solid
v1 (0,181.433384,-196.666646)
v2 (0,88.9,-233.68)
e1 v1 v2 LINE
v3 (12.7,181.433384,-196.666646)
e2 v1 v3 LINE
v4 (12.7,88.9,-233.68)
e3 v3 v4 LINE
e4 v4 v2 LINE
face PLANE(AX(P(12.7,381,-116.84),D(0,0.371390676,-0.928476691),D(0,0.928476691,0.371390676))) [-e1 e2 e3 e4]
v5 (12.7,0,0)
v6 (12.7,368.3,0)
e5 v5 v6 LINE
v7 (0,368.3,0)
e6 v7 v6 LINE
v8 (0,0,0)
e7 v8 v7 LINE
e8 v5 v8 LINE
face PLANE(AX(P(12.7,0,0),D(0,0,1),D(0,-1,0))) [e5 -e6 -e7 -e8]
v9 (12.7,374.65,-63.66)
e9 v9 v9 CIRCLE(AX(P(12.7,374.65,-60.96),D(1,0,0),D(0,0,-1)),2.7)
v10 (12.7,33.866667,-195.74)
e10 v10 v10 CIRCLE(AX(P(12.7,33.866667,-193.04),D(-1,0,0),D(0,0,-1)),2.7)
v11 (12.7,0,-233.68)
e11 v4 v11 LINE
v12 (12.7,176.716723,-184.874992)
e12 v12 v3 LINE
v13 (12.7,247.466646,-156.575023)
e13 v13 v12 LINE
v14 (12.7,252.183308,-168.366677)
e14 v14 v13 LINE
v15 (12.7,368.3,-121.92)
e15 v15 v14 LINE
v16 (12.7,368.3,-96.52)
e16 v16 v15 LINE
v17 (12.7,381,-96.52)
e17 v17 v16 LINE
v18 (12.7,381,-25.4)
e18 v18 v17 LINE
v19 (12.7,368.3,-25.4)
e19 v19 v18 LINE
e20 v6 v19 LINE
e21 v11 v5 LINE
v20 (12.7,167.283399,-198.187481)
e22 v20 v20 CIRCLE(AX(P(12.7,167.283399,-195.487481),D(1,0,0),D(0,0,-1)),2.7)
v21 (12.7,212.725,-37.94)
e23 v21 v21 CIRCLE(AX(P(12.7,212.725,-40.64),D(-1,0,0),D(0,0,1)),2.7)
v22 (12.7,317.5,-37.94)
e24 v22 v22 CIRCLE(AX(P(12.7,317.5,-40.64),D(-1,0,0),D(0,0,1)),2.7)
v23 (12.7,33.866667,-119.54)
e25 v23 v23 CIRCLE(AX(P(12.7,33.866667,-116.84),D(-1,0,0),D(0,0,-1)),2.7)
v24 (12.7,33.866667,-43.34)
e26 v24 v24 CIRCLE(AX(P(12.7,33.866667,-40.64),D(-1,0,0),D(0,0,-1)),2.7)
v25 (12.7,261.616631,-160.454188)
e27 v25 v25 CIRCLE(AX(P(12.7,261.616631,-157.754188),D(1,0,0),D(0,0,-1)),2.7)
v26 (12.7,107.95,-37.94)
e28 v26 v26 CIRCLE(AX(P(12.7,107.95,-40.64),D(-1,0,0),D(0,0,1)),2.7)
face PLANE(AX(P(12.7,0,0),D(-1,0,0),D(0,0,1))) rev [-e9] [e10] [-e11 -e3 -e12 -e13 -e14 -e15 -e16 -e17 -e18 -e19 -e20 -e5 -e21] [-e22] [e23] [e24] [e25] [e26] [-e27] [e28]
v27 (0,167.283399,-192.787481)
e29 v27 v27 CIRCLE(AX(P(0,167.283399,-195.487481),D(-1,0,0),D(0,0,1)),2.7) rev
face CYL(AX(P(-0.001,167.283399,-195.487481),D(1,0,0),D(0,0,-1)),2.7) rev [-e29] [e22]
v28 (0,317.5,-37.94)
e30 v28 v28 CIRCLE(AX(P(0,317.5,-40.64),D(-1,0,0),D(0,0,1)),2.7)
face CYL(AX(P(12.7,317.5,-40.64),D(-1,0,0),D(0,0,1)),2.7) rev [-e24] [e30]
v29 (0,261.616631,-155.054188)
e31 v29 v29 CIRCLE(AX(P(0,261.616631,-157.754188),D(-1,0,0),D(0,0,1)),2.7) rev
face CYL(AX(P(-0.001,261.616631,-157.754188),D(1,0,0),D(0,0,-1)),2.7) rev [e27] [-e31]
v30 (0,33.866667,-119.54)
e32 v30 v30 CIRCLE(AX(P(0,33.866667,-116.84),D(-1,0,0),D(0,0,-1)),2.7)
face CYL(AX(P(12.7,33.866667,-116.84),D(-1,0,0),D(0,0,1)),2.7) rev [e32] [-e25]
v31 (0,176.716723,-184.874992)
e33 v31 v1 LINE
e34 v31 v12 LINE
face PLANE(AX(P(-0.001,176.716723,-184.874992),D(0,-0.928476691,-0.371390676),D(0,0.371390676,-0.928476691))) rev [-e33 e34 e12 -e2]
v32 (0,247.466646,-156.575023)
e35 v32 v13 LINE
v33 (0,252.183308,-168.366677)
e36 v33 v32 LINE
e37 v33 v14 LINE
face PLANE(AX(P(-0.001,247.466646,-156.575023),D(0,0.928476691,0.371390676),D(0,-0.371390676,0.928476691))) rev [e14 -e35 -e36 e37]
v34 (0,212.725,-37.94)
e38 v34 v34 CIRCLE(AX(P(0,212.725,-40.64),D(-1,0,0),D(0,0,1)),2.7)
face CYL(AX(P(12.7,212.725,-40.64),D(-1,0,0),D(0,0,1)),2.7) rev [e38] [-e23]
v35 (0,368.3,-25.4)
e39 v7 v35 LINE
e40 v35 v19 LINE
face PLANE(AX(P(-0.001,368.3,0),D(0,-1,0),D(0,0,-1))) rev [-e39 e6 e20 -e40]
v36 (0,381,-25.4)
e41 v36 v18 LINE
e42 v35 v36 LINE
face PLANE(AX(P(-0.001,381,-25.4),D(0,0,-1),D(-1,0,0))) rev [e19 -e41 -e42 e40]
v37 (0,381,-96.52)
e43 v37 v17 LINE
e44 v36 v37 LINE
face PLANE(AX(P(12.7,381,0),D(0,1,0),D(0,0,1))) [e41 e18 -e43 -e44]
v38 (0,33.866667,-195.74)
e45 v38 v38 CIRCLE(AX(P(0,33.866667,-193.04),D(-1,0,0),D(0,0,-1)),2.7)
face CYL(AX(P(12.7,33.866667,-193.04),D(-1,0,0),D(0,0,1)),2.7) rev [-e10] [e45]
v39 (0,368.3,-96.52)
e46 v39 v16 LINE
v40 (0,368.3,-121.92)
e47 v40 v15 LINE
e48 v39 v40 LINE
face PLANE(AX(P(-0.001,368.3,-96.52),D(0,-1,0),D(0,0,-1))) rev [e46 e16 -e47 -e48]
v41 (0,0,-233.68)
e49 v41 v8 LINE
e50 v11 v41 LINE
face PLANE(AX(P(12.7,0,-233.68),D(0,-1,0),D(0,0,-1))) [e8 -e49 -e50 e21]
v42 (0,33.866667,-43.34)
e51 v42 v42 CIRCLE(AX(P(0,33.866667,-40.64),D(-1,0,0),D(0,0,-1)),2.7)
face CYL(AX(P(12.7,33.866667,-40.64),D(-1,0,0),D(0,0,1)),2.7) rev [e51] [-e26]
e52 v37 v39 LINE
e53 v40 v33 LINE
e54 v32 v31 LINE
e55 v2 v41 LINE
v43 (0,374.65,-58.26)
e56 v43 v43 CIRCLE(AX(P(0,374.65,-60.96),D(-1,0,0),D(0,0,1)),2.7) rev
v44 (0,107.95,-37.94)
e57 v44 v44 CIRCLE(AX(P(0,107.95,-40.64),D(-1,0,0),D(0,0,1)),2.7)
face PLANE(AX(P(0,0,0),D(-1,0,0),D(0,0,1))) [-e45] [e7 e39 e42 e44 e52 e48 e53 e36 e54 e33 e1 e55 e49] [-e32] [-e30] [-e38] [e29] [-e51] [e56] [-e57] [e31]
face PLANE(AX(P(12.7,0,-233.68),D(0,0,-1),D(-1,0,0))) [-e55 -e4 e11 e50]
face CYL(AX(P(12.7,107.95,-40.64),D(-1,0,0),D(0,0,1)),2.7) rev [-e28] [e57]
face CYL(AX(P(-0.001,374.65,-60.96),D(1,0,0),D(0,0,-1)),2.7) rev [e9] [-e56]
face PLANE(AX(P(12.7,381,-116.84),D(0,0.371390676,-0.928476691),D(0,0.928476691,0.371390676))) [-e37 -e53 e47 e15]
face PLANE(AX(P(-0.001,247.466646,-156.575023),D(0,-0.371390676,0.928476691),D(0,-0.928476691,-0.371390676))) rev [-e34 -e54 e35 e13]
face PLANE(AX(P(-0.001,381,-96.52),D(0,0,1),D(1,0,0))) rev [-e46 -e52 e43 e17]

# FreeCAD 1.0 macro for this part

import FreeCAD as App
import Part
import Sketcher
Q = App.Units.Quantity


def add_polygon(sketch, points):
    """Adds a closed chain of lines whose ends are joined by coincident constraints."""
    first, n = sketch.GeometryCount, len(points)
    for a, b in zip(points, points[1:] + points[:1]):
        sketch.addGeometry(Part.LineSegment(App.Vector(*a, 0), App.Vector(*b, 0)), False)
    for i in range(n):
        sketch.addConstraint(Sketcher.Constraint("Coincident", first + i, 2, first + (i + 1) % n, 1))

doc = App.newDocument("Part")
params = doc.addObject("Spreadsheet::Sheet", "Params")
for row, (alias, value) in enumerate([
    ("sketch1_width", "15 in"),
    ("sketch1_width2", "3.5 in"),
    ("sketch1_height", "4.6 in"),
    ("sketch1_height2", "9.2 in"),
    ("pad1_length", "0.5 in"),
    ("sketch3_height", "1 in"),
    ("sketch3_width", "0.5 in"),
    ("sketch4_height", "1 in"),
    ("sketch4_width", "0.5 in"),
    ("sketch7_length", "3 in"),
    ("sketch7_length2", "0.5 in"),
], start=1):
    params.set(f"A{row}", alias)
    params.set(f"B{row}", "=" + value)
    params.setAlias(f"B{row}", alias)

body = doc.addObject("PartDesign::Body", "Body")

sketch1 = doc.addObject("Sketcher::SketchObject", "Sketch")
body.addObject(sketch1)
sketch1.AttachmentSupport = (doc.YZ_Plane, [""])
sketch1.MapMode = "FlatFace"
add_polygon(sketch1, [(381, 0), (381, -116.8), (88.9, -233.7), (0, -233.7), (0, 0)])
sketch1.addGeometry(Part.Circle(App.Vector(33.9, -193, 0), App.Vector(0, 0, 1), 2.7), False)
sketch1.addGeometry(Part.Circle(App.Vector(33.9, -116.8, 0), App.Vector(0, 0, 1), 2.7), False)
sketch1.addGeometry(Part.Circle(App.Vector(317.5, -40.6, 0), App.Vector(0, 0, 1), 2.7), False)
sketch1.addGeometry(Part.Circle(App.Vector(212.7, -40.6, 0), App.Vector(0, 0, 1), 2.7), False)
sketch1.addGeometry(Part.Circle(App.Vector(108, -40.6, 0), App.Vector(0, 0, 1), 2.7), False)
sketch1.addGeometry(Part.Circle(App.Vector(33.9, -40.6, 0), App.Vector(0, 0, 1), 2.7), False)
sketch1.addConstraint([
    Sketcher.Constraint("Vertical", 0),
    Sketcher.Constraint("Horizontal", 2),
    Sketcher.Constraint("Vertical", 3),
    Sketcher.Constraint("Horizontal", 4),
    Sketcher.Constraint("Coincident", 3, 2, -1, 1),
    Sketcher.Constraint("Equal", 5, 6),
    Sketcher.Constraint("Equal", 6, 7),
    Sketcher.Constraint("Equal", 7, 8),
    Sketcher.Constraint("Equal", 8, 9),
    Sketcher.Constraint("Equal", 9, 10),
    Sketcher.Constraint("Horizontal", 7, 3, 8, 3),
    Sketcher.Constraint("Horizontal", 8, 3, 9, 3),
    Sketcher.Constraint("Horizontal", 9, 3, 10, 3),
    Sketcher.Constraint("Horizontal", 6, 3, 0, 2),
    Sketcher.Constraint("Vertical", 5, 3, 6, 3),
    Sketcher.Constraint("Vertical", 6, 3, 10, 3),
    Sketcher.Constraint("DistanceX", 4, 1, 4, 2, Q("15 in")),
    Sketcher.Constraint("DistanceX", 2, 2, 2, 1, Q("3.5 in")),
    Sketcher.Constraint("DistanceY", 0, 2, 0, 1, Q("4.6 in")),
    Sketcher.Constraint("DistanceY", 3, 1, 3, 2, Q("9.2 in")),
    Sketcher.Constraint("DistanceY", 5, 3, 6, 3, Q("3 in")),
    Sketcher.Constraint("DistanceY", 6, 3, 7, 3, Q("3 in")),
    Sketcher.Constraint("DistanceX", -1, 1, 7, 3, Q("12.5 in")),
    Sketcher.Constraint("Diameter", 5, 5.4),
    Sketcher.Constraint("DistanceX", -1, 1, 9, 3, Q("4.25 in")),
    Sketcher.Constraint("DistanceX", -1, 1, 8, 3, Q("8.375 in")),
    Sketcher.Constraint("DistanceX", -1, 1, 5, 3, 33.866667),
])
sketch1.setExpression("Constraints[21]", "Params.sketch1_width")
sketch1.setExpression("Constraints[22]", "Params.sketch1_width2")
sketch1.setExpression("Constraints[23]", "Params.sketch1_height")
sketch1.setExpression("Constraints[24]", "Params.sketch1_height2")
pad1 = doc.addObject("PartDesign::Pad", "Pad")
body.addObject(pad1)
pad1.Profile = sketch1
pad1.setExpression("Length", "Params.pad1_length")

sketch2 = doc.addObject("Sketcher::SketchObject", "Sketch001")
body.addObject(sketch2)
sketch2.AttachmentSupport = (doc.YZ_Plane, [""])
sketch2.MapMode = "FlatFace"
sketch2.AttachmentOffset = App.Placement(App.Vector(0, 0, 0.5 * 25.4), App.Rotation())
sketch2.addGeometry(Part.Circle(App.Vector(374.6, -61, 0), App.Vector(0, 0, 1), 2.7), False)
sketch2.addConstraint([
    Sketcher.Constraint("DistanceY", 0, 3, -1, 1, Q("2.4 in")),
    Sketcher.Constraint("Diameter", 0, 5.4),
    Sketcher.Constraint("DistanceX", -1, 1, 0, 3, Q("14.75 in")),
])
pocket1 = doc.addObject("PartDesign::Pocket", "Pocket")
body.addObject(pocket1)
pocket1.Profile = sketch2
pocket1.Type = "UpToFirst"

sketch3 = doc.addObject("Sketcher::SketchObject", "Sketch002")
body.addObject(sketch3)
sketch3.AttachmentSupport = (doc.YZ_Plane, [""])
sketch3.MapMode = "FlatFace"
sketch3.AttachmentOffset = App.Placement(App.Vector(0, 0, 0.5 * 25.4), App.Rotation())
add_polygon(sketch3, [(381, 0), (368, 0), (368, -25), (381, -25)])
sketch3.addConstraint([
    Sketcher.Constraint("Horizontal", 0),
    Sketcher.Constraint("Vertical", 1),
    Sketcher.Constraint("Horizontal", 2),
    Sketcher.Constraint("Vertical", 3),
    Sketcher.Constraint("PointOnObject", 0, 2, -1),
    Sketcher.Constraint("DistanceY", 1, 2, 1, 1, Q("1 in")),
    Sketcher.Constraint("DistanceX", 0, 2, 0, 1, Q("0.5 in")),
    Sketcher.Constraint("DistanceX", -1, 1, 2, 2, Q("15 in")),
])
sketch3.setExpression("Constraints[9]", "Params.sketch3_height")
sketch3.setExpression("Constraints[10]", "Params.sketch3_width")
pocket2 = doc.addObject("PartDesign::Pocket", "Pocket001")
body.addObject(pocket2)
pocket2.Profile = sketch3
pocket2.Type = "UpToFirst"

sketch4 = doc.addObject("Sketcher::SketchObject", "Sketch003")
body.addObject(sketch4)
sketch4.AttachmentSupport = (doc.YZ_Plane, [""])
sketch4.MapMode = "FlatFace"
sketch4.AttachmentOffset = App.Placement(App.Vector(0, 0, 0.5 * 25.4), App.Rotation())
add_polygon(sketch4, [(381, -97), (368, -97), (368, -122), (381, -122)])
sketch4.addConstraint([
    Sketcher.Constraint("Horizontal", 0),
    Sketcher.Constraint("Vertical", 1),
    Sketcher.Constraint("Horizontal", 2),
    Sketcher.Constraint("Vertical", 3),
    Sketcher.Constraint("DistanceY", 1, 2, 1, 1, Q("1 in")),
    Sketcher.Constraint("DistanceX", 0, 2, 0, 1, Q("0.5 in")),
    Sketcher.Constraint("DistanceX", -1, 1, 2, 2, Q("15 in")),
    Sketcher.Constraint("DistanceY", 0, 2, -1, 1, Q("3.8 in")),
])
sketch4.setExpression("Constraints[8]", "Params.sketch4_height")
sketch4.setExpression("Constraints[9]", "Params.sketch4_width")
pocket3 = doc.addObject("PartDesign::Pocket", "Pocket002")
body.addObject(pocket3)
pocket3.Profile = sketch4
pocket3.Type = "UpToFirst"

sketch5 = doc.addObject("Sketcher::SketchObject", "Sketch004")
body.addObject(sketch5)
sketch5.AttachmentSupport = (doc.YZ_Plane, [""])
sketch5.MapMode = "FlatFace"
sketch5.AttachmentOffset = App.Placement(App.Vector(0, 0, 0.5 * 25.4), App.Rotation())
sketch5.addGeometry(Part.Circle(App.Vector(261.6, -157.8, 0), App.Vector(0, 0, 1), 2.7), False)
sketch5.addConstraint([
    Sketcher.Constraint("Diameter", 0, 5.4),
    Sketcher.Constraint("DistanceX", -1, 1, 0, 3, 261.616631),
    Sketcher.Constraint("DistanceY", 0, 3, -1, 1, 157.754188),
])
pocket4 = doc.addObject("PartDesign::Pocket", "Pocket003")
body.addObject(pocket4)
pocket4.Profile = sketch5
pocket4.Type = "UpToFirst"

sketch6 = doc.addObject("Sketcher::SketchObject", "Sketch005")
body.addObject(sketch6)
sketch6.AttachmentSupport = (doc.YZ_Plane, [""])
sketch6.MapMode = "FlatFace"
sketch6.AttachmentOffset = App.Placement(App.Vector(0, 0, 0.5 * 25.4), App.Rotation())
sketch6.addGeometry(Part.Circle(App.Vector(167.3, -195.5, 0), App.Vector(0, 0, 1), 2.7), False)
sketch6.addConstraint([
    Sketcher.Constraint("Diameter", 0, 5.4),
    Sketcher.Constraint("DistanceX", -1, 1, 0, 3, 167.283399),
    Sketcher.Constraint("DistanceY", 0, 3, -1, 1, 195.487481),
])
pocket5 = doc.addObject("PartDesign::Pocket", "Pocket004")
body.addObject(pocket5)
pocket5.Profile = sketch6
pocket5.Type = "UpToFirst"

sketch7 = doc.addObject("Sketcher::SketchObject", "Sketch006")
body.addObject(sketch7)
sketch7.AttachmentSupport = (doc.YZ_Plane, [""])
sketch7.MapMode = "FlatFace"
sketch7.AttachmentOffset = App.Placement(App.Vector(0, 0, 0.5 * 25.4), App.Rotation())
add_polygon(sketch7, [(247, -157), (177, -185), (181, -197), (252, -168)])
sketch7.addConstraint([
    Sketcher.Constraint("Perpendicular", 0, 1),
    Sketcher.Constraint("Perpendicular", 1, 2),
    Sketcher.Constraint("Perpendicular", 2, 3),
    Sketcher.Constraint("Distance", 0, Q("3 in")),
    Sketcher.Constraint("Distance", 1, Q("0.5 in")),
    Sketcher.Constraint("DistanceX", 0, 2, 1, 2, 4.716662),
    Sketcher.Constraint("DistanceX", -1, 1, 0, 2, 176.716723),
    Sketcher.Constraint("DistanceY", 0, 2, -1, 1, 184.874992),
])
sketch7.setExpression("Constraints[7]", "Params.sketch7_length")
sketch7.setExpression("Constraints[8]", "Params.sketch7_length2")
pocket6 = doc.addObject("PartDesign::Pocket", "Pocket005")
body.addObject(pocket6)
pocket6.Profile = sketch7
pocket6.Type = "UpToFirst"

doc.recompute()
